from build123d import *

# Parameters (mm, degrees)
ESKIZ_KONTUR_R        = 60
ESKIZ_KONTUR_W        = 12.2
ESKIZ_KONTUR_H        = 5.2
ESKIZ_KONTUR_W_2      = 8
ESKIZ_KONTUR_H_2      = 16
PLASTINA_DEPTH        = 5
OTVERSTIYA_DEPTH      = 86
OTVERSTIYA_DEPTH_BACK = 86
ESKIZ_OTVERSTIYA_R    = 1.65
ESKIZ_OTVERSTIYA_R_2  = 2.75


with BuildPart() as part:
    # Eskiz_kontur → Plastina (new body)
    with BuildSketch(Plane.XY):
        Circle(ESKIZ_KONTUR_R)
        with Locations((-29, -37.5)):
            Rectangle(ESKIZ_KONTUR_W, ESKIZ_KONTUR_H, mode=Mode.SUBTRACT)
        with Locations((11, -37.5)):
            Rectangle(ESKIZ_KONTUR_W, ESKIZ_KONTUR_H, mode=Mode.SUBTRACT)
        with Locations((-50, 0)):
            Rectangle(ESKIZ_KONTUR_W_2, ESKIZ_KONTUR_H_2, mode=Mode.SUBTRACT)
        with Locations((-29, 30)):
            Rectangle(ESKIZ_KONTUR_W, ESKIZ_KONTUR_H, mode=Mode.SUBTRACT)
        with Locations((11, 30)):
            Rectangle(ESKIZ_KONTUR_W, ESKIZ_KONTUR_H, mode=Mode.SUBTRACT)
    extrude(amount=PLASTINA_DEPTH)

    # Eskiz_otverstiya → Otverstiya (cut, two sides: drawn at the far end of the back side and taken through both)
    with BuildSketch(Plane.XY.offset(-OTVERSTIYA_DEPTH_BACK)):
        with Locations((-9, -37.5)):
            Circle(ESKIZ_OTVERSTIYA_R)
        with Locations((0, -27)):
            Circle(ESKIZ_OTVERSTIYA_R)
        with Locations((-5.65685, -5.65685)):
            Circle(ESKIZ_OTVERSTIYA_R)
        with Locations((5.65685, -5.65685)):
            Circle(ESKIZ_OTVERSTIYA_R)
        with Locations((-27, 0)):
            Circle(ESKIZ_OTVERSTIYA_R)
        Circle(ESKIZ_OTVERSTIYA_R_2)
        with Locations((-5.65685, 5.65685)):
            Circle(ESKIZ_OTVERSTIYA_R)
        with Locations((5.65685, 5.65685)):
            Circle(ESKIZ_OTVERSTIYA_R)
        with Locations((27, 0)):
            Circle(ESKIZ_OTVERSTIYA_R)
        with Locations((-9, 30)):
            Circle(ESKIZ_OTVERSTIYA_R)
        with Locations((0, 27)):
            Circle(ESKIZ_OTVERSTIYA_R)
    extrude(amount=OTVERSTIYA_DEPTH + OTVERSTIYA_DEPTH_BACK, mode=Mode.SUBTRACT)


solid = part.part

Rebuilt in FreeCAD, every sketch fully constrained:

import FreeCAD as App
import Part
import Sketcher

V = App.Vector
Q = App.Units.Quantity

doc = App.newDocument("Part")
params = doc.addObject("Spreadsheet::Sheet", "Params")
for row, (alias, value) in enumerate([
    ("sketch1_diameter", "120 mm"),
    ("sketch1_width", "8 mm"),
    ("sketch1_height", "16 mm"),
    ("sketch1_width2", "12.2 mm"),
    ("sketch1_height2", "5.2 mm"),
    ("pad1_length", "5 mm"),
    ("sketch2_diameter", "3.3 mm"),
    ("sketch2_diameter2", "5.5 mm"),
], start=1):
    params.set(f"A{row}", alias)
    params.set(f"B{row}", "=" + value)
    params.setAlias(f"B{row}", alias)

body = doc.addObject("PartDesign::Body", "Body")

sketch1 = doc.addObject("Sketcher::SketchObject", "Sketch")
body.addObject(sketch1)
sketch1.AttachmentSupport = (doc.XY_Plane, [""])
sketch1.MapMode = "FlatFace"
sketch1.addGeometry([
    Part.Circle(V(0, 0, 0), V(0, 0, 1), 60),
    Part.LineSegment(V(-22.9, -40.1, 0), V(-35.1, -40.1, 0)),
    Part.LineSegment(V(-35.1, -40.1, 0), V(-35.1, -34.9, 0)),
    Part.LineSegment(V(-35.1, -34.9, 0), V(-22.9, -34.9, 0)),
    Part.LineSegment(V(-22.9, -34.9, 0), V(-22.9, -40.1, 0)),
    Part.LineSegment(V(17.1, -40.1, 0), V(4.9, -40.1, 0)),
    Part.LineSegment(V(4.9, -40.1, 0), V(4.9, -34.9, 0)),
    Part.LineSegment(V(4.9, -34.9, 0), V(17.1, -34.9, 0)),
    Part.LineSegment(V(17.1, -34.9, 0), V(17.1, -40.1, 0)),
    Part.LineSegment(V(-46, -8, 0), V(-54, -8, 0)),
    Part.LineSegment(V(-54, -8, 0), V(-54, 8, 0)),
    Part.LineSegment(V(-54, 8, 0), V(-46, 8, 0)),
    Part.LineSegment(V(-46, 8, 0), V(-46, -8, 0)),
    Part.LineSegment(V(-22.9, 27.4, 0), V(-35.1, 27.4, 0)),
    Part.LineSegment(V(-35.1, 27.4, 0), V(-35.1, 32.6, 0)),
    Part.LineSegment(V(-35.1, 32.6, 0), V(-22.9, 32.6, 0)),
    Part.LineSegment(V(-22.9, 32.6, 0), V(-22.9, 27.4, 0)),
    Part.LineSegment(V(17.1, 27.4, 0), V(4.9, 27.4, 0)),
    Part.LineSegment(V(4.9, 27.4, 0), V(4.9, 32.6, 0)),
    Part.LineSegment(V(4.9, 32.6, 0), V(17.1, 32.6, 0)),
    Part.LineSegment(V(17.1, 32.6, 0), V(17.1, 27.4, 0)),
], False)
sketch1.addConstraint([
    Sketcher.Constraint("Coincident", 1, 2, 2, 1),
    Sketcher.Constraint("Coincident", 2, 2, 3, 1),
    Sketcher.Constraint("Coincident", 3, 2, 4, 1),
    Sketcher.Constraint("Coincident", 4, 2, 1, 1),
    Sketcher.Constraint("Coincident", 5, 2, 6, 1),
    Sketcher.Constraint("Coincident", 6, 2, 7, 1),
    Sketcher.Constraint("Coincident", 7, 2, 8, 1),
    Sketcher.Constraint("Coincident", 8, 2, 5, 1),
    Sketcher.Constraint("Coincident", 9, 2, 10, 1),
    Sketcher.Constraint("Coincident", 10, 2, 11, 1),
    Sketcher.Constraint("Coincident", 11, 2, 12, 1),
    Sketcher.Constraint("Coincident", 12, 2, 9, 1),
    Sketcher.Constraint("Coincident", 13, 2, 14, 1),
    Sketcher.Constraint("Coincident", 14, 2, 15, 1),
    Sketcher.Constraint("Coincident", 15, 2, 16, 1),
    Sketcher.Constraint("Coincident", 16, 2, 13, 1),
    Sketcher.Constraint("Coincident", 17, 2, 18, 1),
    Sketcher.Constraint("Coincident", 18, 2, 19, 1),
    Sketcher.Constraint("Coincident", 19, 2, 20, 1),
    Sketcher.Constraint("Coincident", 20, 2, 17, 1),
    Sketcher.Constraint("Horizontal", 1),
    Sketcher.Constraint("Vertical", 2),
    Sketcher.Constraint("Horizontal", 3),
    Sketcher.Constraint("Vertical", 4),
    Sketcher.Constraint("Horizontal", 5),
    Sketcher.Constraint("Vertical", 6),
    Sketcher.Constraint("Horizontal", 7),
    Sketcher.Constraint("Vertical", 8),
    Sketcher.Constraint("Horizontal", 9),
    Sketcher.Constraint("Vertical", 10),
    Sketcher.Constraint("Horizontal", 11),
    Sketcher.Constraint("Vertical", 12),
    Sketcher.Constraint("Horizontal", 13),
    Sketcher.Constraint("Vertical", 14),
    Sketcher.Constraint("Horizontal", 15),
    Sketcher.Constraint("Vertical", 16),
    Sketcher.Constraint("Horizontal", 17),
    Sketcher.Constraint("Vertical", 18),
    Sketcher.Constraint("Horizontal", 19),
    Sketcher.Constraint("Vertical", 20),
    Sketcher.Constraint("Coincident", 0, 3, -1, 1),
    Sketcher.Constraint("Horizontal", 4, 2, 5, 2),
    Sketcher.Constraint("Horizontal", 3, 2, 6, 2),
    Sketcher.Constraint("Horizontal", 16, 2, 17, 2),
    Sketcher.Constraint("Horizontal", 15, 2, 18, 2),
    Sketcher.Constraint("Vertical", 2, 2, 13, 2),
    Sketcher.Constraint("Vertical", 4, 2, 15, 2),
    Sketcher.Constraint("Vertical", 6, 2, 17, 2),
    Sketcher.Constraint("Vertical", 8, 2, 19, 2),
    Sketcher.Constraint("Equal", 3, 5),
    Sketcher.Constraint("Equal", 8, 14),
    Sketcher.Constraint("Diameter", 0, Q("120 mm")),
    Sketcher.Constraint("DistanceX", 9, 2, 9, 1, Q("8 mm")),
    Sketcher.Constraint("DistanceY", 10, 1, 10, 2, Q("16 mm")),
    Sketcher.Constraint("DistanceX", 1, 2, 1, 1, Q("12.2 mm")),
    Sketcher.Constraint("DistanceY", 2, 1, 2, 2, Q("5.2 mm")),
    Sketcher.Constraint("DistanceX", 9, 2, -1, 1, Q("54 mm")),
    Sketcher.Constraint("DistanceY", 9, 2, -1, 1, Q("8 mm")),
    Sketcher.Constraint("DistanceX", 1, 2, 5, 2, Q("40 mm")),
    Sketcher.Constraint("DistanceX", 1, 2, -1, 1, Q("35.1 mm")),
    Sketcher.Constraint("DistanceY", 1, 2, -1, 1, Q("40.1 mm")),
    Sketcher.Constraint("DistanceY", -1, 1, 13, 2, Q("27.4 mm")),
])
sketch1.setExpression("Constraints[51]", "Params.sketch1_diameter")
sketch1.setExpression("Constraints[52]", "Params.sketch1_width")
sketch1.setExpression("Constraints[53]", "Params.sketch1_height")
sketch1.setExpression("Constraints[54]", "Params.sketch1_width2")
sketch1.setExpression("Constraints[55]", "Params.sketch1_height2")
pad1 = doc.addObject("PartDesign::Pad", "Pad")
body.addObject(pad1)
pad1.Profile = sketch1
pad1.setExpression("Length", "Params.pad1_length")

sketch2 = doc.addObject("Sketcher::SketchObject", "Sketch001")
body.addObject(sketch2)
sketch2.AttachmentSupport = (doc.XY_Plane, [""])
sketch2.MapMode = "FlatFace"
sketch2.addGeometry([
    Part.Circle(V(-9, -37.5, 0), V(0, 0, 1), 1.65),
    Part.Circle(V(0, -27, 0), V(0, 0, 1), 1.65),
    Part.Circle(V(-5.65685, -5.65685, 0), V(0, 0, 1), 1.65),
    Part.Circle(V(5.65685, -5.65685, 0), V(0, 0, 1), 1.65),
    Part.Circle(V(-27, 0, 0), V(0, 0, 1), 1.65),
    Part.Circle(V(0, 0, 0), V(0, 0, 1), 2.75),
    Part.Circle(V(-5.65685, 5.65685, 0), V(0, 0, 1), 1.65),
    Part.Circle(V(5.65685, 5.65685, 0), V(0, 0, 1), 1.65),
    Part.Circle(V(27, 0, 0), V(0, 0, 1), 1.65),
    Part.Circle(V(-9, 30, 0), V(0, 0, 1), 1.65),
    Part.Circle(V(0, 27, 0), V(0, 0, 1), 1.65),
], False)
sketch2.addConstraint([
    Sketcher.Constraint("Coincident", 5, 3, -1, 1),
    Sketcher.Constraint("Equal", 0, 1),
    Sketcher.Constraint("Equal", 1, 2),
    Sketcher.Constraint("Equal", 2, 3),
    Sketcher.Constraint("Equal", 3, 4),
    Sketcher.Constraint("Equal", 4, 6),
    Sketcher.Constraint("Equal", 6, 7),
    Sketcher.Constraint("Equal", 7, 8),
    Sketcher.Constraint("Equal", 8, 9),
    Sketcher.Constraint("Equal", 9, 10),
    Sketcher.Constraint("Symmetric", 3, 3, 6, 3, -1, 1),
    Sketcher.Constraint("Symmetric", 2, 3, 7, 3, -1, 1),
    Sketcher.Constraint("Symmetric", 4, 3, 8, 3, -1, 1),
    Sketcher.Constraint("Symmetric", 1, 3, 10, 3, -1, 1),
    Sketcher.Constraint("Symmetric", 2, 3, 3, 3, -2),
    Sketcher.Constraint("PointOnObject", 1, 3, -2),
    Sketcher.Constraint("PointOnObject", 4, 3, -1),
    Sketcher.Constraint("Vertical", 0, 3, 9, 3),
    Sketcher.Constraint("Diameter", 0, Q("3.3 mm")),
    Sketcher.Constraint("Diameter", 5, Q("5.5 mm")),
    Sketcher.Constraint("DistanceX", 0, 3, -1, 1, Q("9 mm")),
    Sketcher.Constraint("DistanceY", 1, 3, -1, 1, Q("27 mm")),
    Sketcher.Constraint("DistanceX", 4, 3, -1, 1, Q("27 mm")),
    Sketcher.Constraint("DistanceY", -1, 1, 9, 3, Q("30 mm")),
    Sketcher.Constraint("DistanceY", 0, 3, -1, 1, Q("37.5 mm")),
    Sketcher.Constraint("DistanceX", 2, 3, 3, 3, Q("11.3137 mm")),
    Sketcher.Constraint("DistanceY", 2, 3, 6, 3, Q("11.3137 mm")),
])
sketch2.setExpression("Constraints[18]", "Params.sketch2_diameter")
sketch2.setExpression("Constraints[19]", "Params.sketch2_diameter2")
pocket1 = doc.addObject("PartDesign::Pocket", "Pocket")
body.addObject(pocket1)
pocket1.Profile = sketch2
pocket1.Type = "ThroughAll"
pocket1.Midplane = True

doc.recompute()
